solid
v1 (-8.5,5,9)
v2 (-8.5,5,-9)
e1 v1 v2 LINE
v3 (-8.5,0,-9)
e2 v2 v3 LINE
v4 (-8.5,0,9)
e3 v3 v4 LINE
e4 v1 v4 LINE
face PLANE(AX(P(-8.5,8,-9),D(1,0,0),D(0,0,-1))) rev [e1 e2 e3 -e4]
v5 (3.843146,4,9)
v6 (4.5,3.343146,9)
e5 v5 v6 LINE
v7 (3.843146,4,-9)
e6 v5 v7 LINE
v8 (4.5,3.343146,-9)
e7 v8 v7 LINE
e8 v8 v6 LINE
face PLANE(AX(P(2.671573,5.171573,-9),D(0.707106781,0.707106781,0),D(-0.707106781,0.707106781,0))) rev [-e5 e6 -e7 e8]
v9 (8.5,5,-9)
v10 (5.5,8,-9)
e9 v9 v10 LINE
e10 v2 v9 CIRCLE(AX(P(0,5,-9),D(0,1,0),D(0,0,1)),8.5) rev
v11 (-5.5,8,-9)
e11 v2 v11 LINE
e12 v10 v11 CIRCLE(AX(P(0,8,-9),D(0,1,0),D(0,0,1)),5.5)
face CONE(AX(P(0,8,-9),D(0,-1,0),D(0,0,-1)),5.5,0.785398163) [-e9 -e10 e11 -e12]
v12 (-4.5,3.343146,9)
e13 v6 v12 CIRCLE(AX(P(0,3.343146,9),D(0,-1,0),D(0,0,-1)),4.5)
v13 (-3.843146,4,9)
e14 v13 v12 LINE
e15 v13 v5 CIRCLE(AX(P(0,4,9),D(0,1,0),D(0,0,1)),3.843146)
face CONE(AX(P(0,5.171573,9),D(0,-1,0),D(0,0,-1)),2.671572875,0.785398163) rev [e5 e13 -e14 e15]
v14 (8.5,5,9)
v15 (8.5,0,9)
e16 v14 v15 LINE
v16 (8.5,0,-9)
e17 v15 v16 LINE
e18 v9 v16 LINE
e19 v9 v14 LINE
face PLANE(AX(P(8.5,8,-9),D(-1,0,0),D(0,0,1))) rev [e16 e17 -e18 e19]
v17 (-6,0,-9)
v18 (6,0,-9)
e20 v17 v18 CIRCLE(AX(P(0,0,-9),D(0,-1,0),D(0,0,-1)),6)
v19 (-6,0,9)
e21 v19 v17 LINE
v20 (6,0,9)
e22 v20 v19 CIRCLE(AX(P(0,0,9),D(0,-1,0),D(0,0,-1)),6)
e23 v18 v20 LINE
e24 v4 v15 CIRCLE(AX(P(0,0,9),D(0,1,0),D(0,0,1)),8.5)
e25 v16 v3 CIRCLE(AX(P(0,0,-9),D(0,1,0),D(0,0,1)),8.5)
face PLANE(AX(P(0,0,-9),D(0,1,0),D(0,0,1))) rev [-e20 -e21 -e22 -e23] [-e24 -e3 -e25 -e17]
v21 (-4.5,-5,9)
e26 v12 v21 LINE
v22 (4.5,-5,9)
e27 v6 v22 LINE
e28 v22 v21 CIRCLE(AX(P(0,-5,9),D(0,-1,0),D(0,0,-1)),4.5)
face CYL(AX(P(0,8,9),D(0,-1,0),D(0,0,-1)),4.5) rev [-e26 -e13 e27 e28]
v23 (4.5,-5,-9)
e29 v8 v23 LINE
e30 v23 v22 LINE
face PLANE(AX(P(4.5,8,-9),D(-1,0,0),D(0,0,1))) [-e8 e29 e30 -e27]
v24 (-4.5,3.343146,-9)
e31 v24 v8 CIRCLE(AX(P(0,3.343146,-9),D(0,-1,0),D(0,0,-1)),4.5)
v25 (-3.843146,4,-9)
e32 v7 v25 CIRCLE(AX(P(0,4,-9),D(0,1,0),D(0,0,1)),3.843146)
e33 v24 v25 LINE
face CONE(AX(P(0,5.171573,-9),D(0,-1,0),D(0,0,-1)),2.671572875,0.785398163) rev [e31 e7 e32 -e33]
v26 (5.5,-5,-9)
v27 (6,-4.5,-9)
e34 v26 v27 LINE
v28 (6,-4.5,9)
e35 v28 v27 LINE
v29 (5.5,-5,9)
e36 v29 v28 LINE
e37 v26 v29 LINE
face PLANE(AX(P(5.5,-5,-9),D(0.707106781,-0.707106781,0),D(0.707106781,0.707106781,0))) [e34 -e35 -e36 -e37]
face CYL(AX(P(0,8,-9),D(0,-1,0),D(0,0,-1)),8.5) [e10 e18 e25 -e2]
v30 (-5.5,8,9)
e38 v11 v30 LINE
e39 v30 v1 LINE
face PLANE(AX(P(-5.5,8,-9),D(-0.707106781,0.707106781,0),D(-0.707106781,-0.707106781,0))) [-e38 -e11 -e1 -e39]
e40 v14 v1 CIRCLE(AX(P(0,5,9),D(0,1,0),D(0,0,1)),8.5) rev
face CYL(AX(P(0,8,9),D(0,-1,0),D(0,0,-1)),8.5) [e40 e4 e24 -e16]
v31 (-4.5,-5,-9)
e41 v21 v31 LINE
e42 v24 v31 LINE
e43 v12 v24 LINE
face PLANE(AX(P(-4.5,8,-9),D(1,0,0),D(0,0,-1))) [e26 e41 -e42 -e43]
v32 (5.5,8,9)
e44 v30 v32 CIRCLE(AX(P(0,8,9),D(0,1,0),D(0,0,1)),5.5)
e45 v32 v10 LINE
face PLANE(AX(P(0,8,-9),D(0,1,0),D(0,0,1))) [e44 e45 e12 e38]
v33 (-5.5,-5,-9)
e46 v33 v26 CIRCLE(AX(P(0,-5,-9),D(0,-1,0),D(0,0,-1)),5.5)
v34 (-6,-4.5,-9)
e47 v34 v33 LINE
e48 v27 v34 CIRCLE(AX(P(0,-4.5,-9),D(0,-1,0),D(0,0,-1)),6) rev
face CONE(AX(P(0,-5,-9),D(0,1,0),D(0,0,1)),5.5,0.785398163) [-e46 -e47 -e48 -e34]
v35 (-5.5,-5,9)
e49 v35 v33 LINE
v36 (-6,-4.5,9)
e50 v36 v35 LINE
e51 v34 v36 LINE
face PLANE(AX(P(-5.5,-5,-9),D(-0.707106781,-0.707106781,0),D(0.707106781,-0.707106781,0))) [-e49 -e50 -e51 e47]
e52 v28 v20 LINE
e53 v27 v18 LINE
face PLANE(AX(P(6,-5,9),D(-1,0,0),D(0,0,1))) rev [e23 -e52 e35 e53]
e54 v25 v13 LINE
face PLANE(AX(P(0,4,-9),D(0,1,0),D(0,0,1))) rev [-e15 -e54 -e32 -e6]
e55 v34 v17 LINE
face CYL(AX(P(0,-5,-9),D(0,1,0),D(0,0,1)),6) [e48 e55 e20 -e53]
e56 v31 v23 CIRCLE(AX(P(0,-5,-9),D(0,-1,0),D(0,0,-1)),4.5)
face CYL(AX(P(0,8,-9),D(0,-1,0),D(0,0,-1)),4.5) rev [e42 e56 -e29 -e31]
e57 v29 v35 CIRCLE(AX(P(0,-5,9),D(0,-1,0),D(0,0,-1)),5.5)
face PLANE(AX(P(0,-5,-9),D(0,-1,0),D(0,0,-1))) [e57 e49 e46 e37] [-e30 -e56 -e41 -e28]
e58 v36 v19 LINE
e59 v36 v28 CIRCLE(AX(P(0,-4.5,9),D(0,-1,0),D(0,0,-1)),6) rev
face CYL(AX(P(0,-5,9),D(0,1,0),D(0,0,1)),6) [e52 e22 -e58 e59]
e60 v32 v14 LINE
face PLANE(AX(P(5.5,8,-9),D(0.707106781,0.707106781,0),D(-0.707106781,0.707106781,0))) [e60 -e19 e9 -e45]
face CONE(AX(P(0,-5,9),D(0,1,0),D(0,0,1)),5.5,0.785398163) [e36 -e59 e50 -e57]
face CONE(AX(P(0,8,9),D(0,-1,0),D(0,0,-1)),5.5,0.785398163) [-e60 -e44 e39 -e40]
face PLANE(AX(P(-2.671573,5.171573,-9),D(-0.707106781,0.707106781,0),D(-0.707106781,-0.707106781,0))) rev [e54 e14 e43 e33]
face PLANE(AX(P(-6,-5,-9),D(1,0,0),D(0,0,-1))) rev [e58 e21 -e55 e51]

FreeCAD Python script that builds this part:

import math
import FreeCAD as App
import Part
import Sketcher

V = App.Vector
Q = App.Units.Quantity


def edges_at(feature, points):
    """Names of the edges that pass closest to the given points."""
    edges = feature.Shape.Edges
    near = lambda p: min(range(len(edges)), key=lambda i: edges[i].distToShape(Part.Vertex(*p))[0])
    return sorted({f"Edge{near(p) + 1}" for p in points})


def faces_at(feature, points):
    """Names of the faces that lie closest to the given points."""
    faces = feature.Shape.Faces
    near = lambda p: min(range(len(faces)), key=lambda i: faces[i].distToShape(Part.Vertex(*p))[0])
    return sorted({f"Face{near(p) + 1}" for p in points})

doc = App.newDocument("Part")
body = doc.addObject("PartDesign::Body", "Body")

# Sketch on XZ plane
sketch1 = body.newObject("Sketcher::SketchObject", "Sketch")
sketch1.AttachmentSupport = (doc.getObject("XZ_Plane"), [""])
sketch1.MapMode = "FlatFace"
sketch1.addGeometry([
    Part.LineSegment(V(-8, -9, 0), V(-8, 9, 0)),
    Part.ArcOfCircle(Part.Circle(V(0, 9, 0), V(0, 0, 1), 8), math.radians(0), math.radians(180)),
    Part.LineSegment(V(8, 9, 0), V(8, -9, 0)),
    Part.ArcOfCircle(Part.Circle(V(0, -9, 0), V(0, 0, 1), 8), math.radians(180), math.radians(360)),
], False)
sketch1.addConstraint([
    Sketcher.Constraint("Tangent", 0, 2, 1, 2),
    Sketcher.Constraint("Tangent", 1, 1, 2, 1),
    Sketcher.Constraint("Tangent", 2, 2, 3, 2),
    Sketcher.Constraint("Tangent", 3, 1, 0, 1),
    Sketcher.Constraint("Vertical", 0),
    Sketcher.Constraint("Vertical", 2),
    Sketcher.Constraint("Symmetric", 1, 3, 3, 3, -1, 1),
    Sketcher.Constraint("Radius", 1, Q("8.5 mm")),
    Sketcher.Constraint("DistanceY", 0, 1, 0, 2, Q("18 mm")),
])
pad1 = body.newObject("PartDesign::Pad", "Pad")
pad1.Profile = sketch1
pad1.Length = 8
pad1.Reversed = True
doc.recompute()

chamfer = body.newObject("PartDesign::Chamfer", "Chamfer")
chamfer.Base = (pad1, edges_at(pad1, [
    (0, 8, 17.5),
    (8.5, 8, 0),
    (0, 8, -17.5),
    (-8.5, 8, 0),
]))
chamfer.Size = 3
doc.recompute()

thickness = body.newObject("PartDesign::Thickness", "Thickness")
thickness.Base = (chamfer, faces_at(chamfer, [(0, 0, 0)]))
thickness.Value = 4
thickness.Reversed = True
thickness.Join = "Intersection"

# Sketch on XZ plane
sketch2 = body.newObject("Sketcher::SketchObject", "Sketch001")
sketch2.AttachmentSupport = (doc.getObject("XZ_Plane"), [""])
sketch2.MapMode = "FlatFace"
sketch2.addGeometry([
    Part.LineSegment(V(-6, 9, 0), V(-6, -9, 0)),  # 0
    Part.ArcOfCircle(Part.Circle(V(0, -9, 0), V(0, 0, 1), 6), math.radians(180), math.radians(360)),  # 1
    Part.LineSegment(V(6, -9, 0), V(6, 9, 0)),  # 2
    Part.ArcOfCircle(Part.Circle(V(0, 9, 0), V(0, 0, 1), 6), math.radians(0), math.radians(180)),  # 3
    Part.LineSegment(V(4.5, 9, 0), V(4.5, -9, 0)),  # 4
    Part.ArcOfCircle(Part.Circle(V(0, -9, 0), V(0, 0, 1), 4.5), math.radians(180), math.radians(360)),  # 5
    Part.LineSegment(V(-4.5, -9, 0), V(-4.5, 9, 0)),  # 6
    Part.ArcOfCircle(Part.Circle(V(0, 9, 0), V(0, 0, 1), 4.5), math.radians(0), math.radians(180)),  # 7
], False)
sketch2.addConstraint([
    Sketcher.Constraint("Tangent", 0, 2, 1, 1),
    Sketcher.Constraint("Tangent", 1, 2, 2, 1),
    Sketcher.Constraint("Tangent", 2, 2, 3, 1),
    Sketcher.Constraint("Tangent", 3, 2, 0, 1),
    Sketcher.Constraint("Tangent", 4, 2, 5, 2),
    Sketcher.Constraint("Tangent", 5, 1, 6, 1),
    Sketcher.Constraint("Tangent", 6, 2, 7, 2),
    Sketcher.Constraint("Tangent", 7, 1, 4, 1),
    Sketcher.Constraint("Vertical", 0),
    Sketcher.Constraint("Vertical", 2),
    Sketcher.Constraint("Vertical", 4),
    Sketcher.Constraint("Vertical", 6),
    Sketcher.Constraint("Coincident", 5, 3, 1, 3),
    Sketcher.Constraint("Symmetric", 1, 3, 3, 3, -1, 1),
    Sketcher.Constraint("Horizontal", 7, 3, 2, 2),
    Sketcher.Constraint("Radius", 1, Q("6 mm")),
    Sketcher.Constraint("Radius", 5, Q("4.5 mm")),
    Sketcher.Constraint("DistanceY", 0, 2, 0, 1, Q("18 mm")),
])
pad2 = body.newObject("PartDesign::Pad", "Pad001")
pad2.Profile = sketch2
pad2.Length = 5
doc.recompute()

chamfer2 = body.newObject("PartDesign::Chamfer", "Chamfer001")
chamfer2.Base = (pad2, edges_at(pad2, [
    (0, -5, -15),
    (6, -5, 0),
    (0, -5, 15),
    (-6, -5, 0),
]))
chamfer2.Size = 0.5

doc.recompute()
